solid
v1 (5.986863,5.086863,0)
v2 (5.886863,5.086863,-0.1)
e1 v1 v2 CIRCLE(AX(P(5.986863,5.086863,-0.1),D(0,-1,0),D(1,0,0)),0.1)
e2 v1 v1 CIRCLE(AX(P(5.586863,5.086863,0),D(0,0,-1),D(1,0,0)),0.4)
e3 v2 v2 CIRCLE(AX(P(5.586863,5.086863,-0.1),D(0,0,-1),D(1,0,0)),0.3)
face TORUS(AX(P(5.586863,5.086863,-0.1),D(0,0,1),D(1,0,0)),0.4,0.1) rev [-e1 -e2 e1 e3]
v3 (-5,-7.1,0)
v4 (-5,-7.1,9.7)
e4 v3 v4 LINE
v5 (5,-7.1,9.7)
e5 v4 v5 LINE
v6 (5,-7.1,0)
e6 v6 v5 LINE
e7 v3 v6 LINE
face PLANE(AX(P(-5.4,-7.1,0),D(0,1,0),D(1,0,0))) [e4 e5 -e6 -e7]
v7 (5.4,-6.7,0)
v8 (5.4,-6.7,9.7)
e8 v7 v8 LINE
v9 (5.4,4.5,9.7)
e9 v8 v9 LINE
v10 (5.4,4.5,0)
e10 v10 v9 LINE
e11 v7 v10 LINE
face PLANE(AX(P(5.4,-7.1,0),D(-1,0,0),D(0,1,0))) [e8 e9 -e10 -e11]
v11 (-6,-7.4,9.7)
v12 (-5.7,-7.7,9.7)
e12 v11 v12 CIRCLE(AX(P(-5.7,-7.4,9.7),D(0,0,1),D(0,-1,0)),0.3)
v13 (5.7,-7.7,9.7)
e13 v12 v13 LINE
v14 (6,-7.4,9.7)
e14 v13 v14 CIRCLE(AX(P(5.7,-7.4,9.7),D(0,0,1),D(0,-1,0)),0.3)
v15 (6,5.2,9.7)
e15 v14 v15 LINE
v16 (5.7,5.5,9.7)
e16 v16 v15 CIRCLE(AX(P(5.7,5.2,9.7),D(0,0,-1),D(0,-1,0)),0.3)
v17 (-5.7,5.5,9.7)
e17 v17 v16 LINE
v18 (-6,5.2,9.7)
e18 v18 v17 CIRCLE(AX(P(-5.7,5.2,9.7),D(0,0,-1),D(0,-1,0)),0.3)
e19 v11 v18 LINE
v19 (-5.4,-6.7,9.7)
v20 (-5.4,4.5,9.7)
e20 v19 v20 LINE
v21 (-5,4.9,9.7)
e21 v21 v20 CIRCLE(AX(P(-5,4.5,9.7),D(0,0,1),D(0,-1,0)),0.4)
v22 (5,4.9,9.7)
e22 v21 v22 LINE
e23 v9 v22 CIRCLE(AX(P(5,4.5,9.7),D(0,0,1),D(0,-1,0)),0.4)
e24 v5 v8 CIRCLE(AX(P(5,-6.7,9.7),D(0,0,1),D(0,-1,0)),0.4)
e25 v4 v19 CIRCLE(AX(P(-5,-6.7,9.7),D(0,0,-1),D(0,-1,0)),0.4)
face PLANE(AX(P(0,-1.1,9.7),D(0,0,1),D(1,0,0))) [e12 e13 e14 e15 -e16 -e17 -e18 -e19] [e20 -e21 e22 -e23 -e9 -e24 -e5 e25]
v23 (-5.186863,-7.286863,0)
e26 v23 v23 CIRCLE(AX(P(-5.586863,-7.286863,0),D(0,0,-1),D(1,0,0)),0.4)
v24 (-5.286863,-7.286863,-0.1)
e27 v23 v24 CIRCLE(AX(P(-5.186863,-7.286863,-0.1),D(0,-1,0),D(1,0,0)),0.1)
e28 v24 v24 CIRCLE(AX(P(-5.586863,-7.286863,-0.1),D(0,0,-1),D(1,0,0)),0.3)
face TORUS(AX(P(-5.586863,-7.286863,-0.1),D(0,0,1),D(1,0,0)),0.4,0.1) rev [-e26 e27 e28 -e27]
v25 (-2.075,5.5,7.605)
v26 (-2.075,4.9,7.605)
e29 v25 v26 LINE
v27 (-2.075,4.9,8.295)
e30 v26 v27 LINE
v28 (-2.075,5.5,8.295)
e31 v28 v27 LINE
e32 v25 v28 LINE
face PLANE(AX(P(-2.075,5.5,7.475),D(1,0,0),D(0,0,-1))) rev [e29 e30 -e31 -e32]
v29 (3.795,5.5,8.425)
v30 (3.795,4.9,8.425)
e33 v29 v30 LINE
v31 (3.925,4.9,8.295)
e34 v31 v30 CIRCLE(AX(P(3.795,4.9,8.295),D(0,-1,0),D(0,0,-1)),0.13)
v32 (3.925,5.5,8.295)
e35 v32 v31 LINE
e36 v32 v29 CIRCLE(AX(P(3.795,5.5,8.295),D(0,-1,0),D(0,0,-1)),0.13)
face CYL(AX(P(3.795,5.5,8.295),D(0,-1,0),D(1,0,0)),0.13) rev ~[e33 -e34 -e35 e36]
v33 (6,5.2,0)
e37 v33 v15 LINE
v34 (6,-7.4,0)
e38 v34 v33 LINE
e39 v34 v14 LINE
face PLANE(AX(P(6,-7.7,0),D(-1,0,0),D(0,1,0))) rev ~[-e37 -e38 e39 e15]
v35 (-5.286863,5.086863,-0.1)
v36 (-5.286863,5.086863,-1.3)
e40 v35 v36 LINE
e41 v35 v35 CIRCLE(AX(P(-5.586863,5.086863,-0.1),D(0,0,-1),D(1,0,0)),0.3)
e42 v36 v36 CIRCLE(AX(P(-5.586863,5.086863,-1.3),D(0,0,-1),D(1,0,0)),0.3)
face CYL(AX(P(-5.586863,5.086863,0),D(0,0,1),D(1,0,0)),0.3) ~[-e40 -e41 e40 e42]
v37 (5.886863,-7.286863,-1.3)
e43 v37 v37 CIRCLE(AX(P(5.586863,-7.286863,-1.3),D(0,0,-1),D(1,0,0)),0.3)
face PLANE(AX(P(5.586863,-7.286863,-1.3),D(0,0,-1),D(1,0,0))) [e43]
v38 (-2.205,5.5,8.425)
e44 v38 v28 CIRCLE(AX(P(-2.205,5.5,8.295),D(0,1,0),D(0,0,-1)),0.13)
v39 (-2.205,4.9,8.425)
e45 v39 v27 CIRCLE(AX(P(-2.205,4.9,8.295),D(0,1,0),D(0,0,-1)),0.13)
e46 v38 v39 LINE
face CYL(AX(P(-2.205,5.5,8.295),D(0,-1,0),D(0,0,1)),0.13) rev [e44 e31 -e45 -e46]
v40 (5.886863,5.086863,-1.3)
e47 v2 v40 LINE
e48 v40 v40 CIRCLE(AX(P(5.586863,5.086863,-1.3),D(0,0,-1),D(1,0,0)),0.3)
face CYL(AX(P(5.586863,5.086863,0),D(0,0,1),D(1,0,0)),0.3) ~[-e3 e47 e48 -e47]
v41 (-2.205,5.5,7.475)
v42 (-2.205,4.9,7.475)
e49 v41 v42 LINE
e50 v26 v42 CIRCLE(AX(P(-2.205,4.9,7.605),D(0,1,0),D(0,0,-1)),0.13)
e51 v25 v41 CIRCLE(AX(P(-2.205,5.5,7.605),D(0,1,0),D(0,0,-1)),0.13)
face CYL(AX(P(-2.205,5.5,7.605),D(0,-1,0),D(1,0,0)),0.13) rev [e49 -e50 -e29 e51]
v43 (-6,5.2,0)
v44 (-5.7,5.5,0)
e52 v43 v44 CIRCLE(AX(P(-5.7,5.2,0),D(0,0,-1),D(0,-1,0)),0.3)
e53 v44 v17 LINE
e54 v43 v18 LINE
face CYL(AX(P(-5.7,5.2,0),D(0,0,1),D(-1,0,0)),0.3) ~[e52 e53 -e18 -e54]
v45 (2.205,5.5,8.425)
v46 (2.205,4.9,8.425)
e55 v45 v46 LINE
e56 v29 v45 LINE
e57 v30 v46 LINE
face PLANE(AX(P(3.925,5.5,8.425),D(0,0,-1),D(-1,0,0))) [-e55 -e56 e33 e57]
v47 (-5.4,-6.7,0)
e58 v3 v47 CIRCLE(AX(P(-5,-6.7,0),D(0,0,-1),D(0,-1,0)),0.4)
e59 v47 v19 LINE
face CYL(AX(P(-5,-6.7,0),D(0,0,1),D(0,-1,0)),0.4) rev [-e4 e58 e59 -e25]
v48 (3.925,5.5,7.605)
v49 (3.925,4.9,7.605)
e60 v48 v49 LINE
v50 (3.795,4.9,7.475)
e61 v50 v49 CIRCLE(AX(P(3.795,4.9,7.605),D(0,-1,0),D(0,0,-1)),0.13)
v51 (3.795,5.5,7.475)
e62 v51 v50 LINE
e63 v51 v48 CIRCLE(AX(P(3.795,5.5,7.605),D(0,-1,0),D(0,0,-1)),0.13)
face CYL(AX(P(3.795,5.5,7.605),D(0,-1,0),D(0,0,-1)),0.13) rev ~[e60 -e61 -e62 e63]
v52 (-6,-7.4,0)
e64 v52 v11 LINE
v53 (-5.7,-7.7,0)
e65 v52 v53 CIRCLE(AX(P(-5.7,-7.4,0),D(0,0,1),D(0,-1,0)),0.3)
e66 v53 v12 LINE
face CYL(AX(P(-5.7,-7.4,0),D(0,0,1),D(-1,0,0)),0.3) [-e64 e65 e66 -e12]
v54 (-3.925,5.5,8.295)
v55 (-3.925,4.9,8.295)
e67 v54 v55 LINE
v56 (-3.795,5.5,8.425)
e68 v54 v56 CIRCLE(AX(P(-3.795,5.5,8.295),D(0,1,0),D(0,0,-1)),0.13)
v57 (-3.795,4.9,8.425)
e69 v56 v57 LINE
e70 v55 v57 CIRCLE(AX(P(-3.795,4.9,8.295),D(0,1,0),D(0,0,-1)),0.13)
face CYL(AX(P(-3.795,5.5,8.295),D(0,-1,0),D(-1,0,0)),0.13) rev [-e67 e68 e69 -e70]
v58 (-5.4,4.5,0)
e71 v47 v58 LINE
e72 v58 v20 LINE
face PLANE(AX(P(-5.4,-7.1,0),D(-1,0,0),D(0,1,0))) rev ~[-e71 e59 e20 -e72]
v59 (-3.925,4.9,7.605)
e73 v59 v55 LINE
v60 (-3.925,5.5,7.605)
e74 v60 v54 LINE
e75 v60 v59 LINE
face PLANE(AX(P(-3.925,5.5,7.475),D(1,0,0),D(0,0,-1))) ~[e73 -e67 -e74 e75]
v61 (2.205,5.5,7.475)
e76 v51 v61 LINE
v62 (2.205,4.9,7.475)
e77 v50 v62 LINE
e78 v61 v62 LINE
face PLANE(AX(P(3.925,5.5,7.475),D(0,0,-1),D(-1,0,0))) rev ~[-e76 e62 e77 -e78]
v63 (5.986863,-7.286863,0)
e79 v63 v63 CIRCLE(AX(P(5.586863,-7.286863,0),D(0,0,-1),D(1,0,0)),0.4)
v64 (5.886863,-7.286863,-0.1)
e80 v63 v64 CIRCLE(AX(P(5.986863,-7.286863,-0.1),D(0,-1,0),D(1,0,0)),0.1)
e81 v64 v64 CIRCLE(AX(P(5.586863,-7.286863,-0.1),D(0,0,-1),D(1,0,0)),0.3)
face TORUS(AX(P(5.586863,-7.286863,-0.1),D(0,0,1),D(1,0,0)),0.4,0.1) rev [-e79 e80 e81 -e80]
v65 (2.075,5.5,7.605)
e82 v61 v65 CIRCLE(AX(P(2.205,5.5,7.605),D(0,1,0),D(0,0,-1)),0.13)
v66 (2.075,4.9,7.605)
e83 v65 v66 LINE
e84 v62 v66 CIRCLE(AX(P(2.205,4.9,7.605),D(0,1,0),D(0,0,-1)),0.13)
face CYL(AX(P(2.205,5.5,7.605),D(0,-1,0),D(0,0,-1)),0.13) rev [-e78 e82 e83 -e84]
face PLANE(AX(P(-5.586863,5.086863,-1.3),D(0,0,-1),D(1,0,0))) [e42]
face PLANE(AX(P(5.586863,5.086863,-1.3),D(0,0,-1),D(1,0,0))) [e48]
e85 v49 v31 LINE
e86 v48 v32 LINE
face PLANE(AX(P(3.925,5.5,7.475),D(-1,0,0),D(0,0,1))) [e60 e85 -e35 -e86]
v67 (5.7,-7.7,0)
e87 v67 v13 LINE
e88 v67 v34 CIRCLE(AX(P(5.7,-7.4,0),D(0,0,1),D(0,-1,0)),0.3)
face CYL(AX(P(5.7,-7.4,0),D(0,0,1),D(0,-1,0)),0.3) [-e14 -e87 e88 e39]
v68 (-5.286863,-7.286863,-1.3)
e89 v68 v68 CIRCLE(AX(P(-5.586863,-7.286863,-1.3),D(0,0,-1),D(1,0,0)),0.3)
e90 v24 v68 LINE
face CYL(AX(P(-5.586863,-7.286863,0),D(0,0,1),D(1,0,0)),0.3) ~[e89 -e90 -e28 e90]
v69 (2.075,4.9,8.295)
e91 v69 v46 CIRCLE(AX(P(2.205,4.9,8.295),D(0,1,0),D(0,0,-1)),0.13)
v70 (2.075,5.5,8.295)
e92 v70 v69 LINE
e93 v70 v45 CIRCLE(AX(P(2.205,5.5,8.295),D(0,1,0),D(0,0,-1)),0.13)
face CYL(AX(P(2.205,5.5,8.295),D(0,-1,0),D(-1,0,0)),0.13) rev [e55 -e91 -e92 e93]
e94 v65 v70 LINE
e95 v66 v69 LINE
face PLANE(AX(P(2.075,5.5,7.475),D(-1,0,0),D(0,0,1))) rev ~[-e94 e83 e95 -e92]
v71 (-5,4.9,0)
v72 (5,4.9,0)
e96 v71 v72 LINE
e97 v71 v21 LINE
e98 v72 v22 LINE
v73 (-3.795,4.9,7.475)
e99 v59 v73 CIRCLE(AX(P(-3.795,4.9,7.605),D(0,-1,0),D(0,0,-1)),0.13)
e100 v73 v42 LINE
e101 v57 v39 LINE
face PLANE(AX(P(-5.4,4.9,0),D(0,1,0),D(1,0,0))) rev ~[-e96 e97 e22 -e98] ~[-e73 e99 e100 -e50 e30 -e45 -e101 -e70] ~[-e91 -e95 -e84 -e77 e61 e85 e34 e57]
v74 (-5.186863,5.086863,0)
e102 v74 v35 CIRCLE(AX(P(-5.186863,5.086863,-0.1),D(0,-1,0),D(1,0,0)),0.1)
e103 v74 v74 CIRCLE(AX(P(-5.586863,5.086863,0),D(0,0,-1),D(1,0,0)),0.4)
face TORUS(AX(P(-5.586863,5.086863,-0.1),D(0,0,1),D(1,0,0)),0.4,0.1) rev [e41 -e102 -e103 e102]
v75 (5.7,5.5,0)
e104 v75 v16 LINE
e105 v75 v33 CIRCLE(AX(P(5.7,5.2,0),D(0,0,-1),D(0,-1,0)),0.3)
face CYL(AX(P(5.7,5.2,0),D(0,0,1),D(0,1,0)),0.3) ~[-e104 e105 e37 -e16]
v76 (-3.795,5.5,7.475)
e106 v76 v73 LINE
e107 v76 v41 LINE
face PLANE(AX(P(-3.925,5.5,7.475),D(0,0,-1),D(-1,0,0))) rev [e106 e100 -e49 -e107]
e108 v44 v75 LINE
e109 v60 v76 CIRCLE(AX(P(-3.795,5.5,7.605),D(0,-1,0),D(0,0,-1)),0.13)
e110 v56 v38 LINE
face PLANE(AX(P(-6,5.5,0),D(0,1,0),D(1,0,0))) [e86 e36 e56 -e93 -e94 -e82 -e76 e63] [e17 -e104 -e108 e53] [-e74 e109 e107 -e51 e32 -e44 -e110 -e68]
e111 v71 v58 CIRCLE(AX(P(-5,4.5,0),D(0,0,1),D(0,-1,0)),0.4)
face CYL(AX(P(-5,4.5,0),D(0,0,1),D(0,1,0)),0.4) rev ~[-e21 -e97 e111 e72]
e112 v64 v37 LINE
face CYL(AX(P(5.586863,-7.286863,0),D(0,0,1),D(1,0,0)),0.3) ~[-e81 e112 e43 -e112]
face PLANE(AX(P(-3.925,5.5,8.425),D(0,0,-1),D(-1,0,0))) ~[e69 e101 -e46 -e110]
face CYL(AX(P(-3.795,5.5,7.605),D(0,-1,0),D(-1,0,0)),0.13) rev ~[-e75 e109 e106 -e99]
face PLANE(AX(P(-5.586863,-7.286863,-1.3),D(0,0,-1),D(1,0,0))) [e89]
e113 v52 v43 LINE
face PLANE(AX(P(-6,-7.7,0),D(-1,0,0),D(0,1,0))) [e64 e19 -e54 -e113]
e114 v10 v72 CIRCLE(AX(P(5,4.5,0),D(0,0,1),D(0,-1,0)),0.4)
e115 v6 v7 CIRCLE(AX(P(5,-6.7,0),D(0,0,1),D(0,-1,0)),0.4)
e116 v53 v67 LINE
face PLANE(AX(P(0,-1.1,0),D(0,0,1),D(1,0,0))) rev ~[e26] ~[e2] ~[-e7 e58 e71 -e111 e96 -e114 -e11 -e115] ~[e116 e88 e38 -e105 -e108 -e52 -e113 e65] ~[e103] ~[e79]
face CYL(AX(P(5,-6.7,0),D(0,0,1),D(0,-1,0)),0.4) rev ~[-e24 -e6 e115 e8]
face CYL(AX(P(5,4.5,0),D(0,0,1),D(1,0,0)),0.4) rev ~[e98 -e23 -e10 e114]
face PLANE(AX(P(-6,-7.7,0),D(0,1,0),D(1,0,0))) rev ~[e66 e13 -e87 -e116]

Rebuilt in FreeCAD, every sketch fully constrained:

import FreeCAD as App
import Part
import Sketcher
Q = App.Units.Quantity


def edges_at(feature, points):
    """Names of the edges that pass closest to the given points."""
    edges = feature.Shape.Edges
    near = lambda p: min(range(len(edges)), key=lambda i: edges[i].distToShape(Part.Vertex(*p))[0])
    return sorted({f"Edge{near(p) + 1}" for p in points})

doc = App.newDocument("Part")
body = doc.addObject("PartDesign::Body", "Body")

sketch1 = doc.addObject("Sketcher::SketchObject", "Sketch")
body.addObject(sketch1)
sketch1.AttachmentSupport = (doc.XY_Plane, [""])
sketch1.MapMode = "FlatFace"
sketch1.addGeometry(Part.LineSegment(App.Vector(-6, 5.5, 0), App.Vector(-6, -7.7, 0)), False)
sketch1.addGeometry(Part.LineSegment(App.Vector(-6, -7.7, 0), App.Vector(6, -7.7, 0)), False)
sketch1.addGeometry(Part.LineSegment(App.Vector(6, -7.7, 0), App.Vector(6, 5.5, 0)), False)
sketch1.addGeometry(Part.LineSegment(App.Vector(6, 5.5, 0), App.Vector(-6, 5.5, 0)), False)
sketch1.addGeometry(Part.LineSegment(App.Vector(5.4, -7.1, 0), App.Vector(-5.4, -7.1, 0)), False)
sketch1.addGeometry(Part.LineSegment(App.Vector(-5.4, -7.1, 0), App.Vector(-5.4, 4.9, 0)), False)
sketch1.addGeometry(Part.LineSegment(App.Vector(-5.4, 4.9, 0), App.Vector(5.4, 4.9, 0)), False)
sketch1.addGeometry(Part.LineSegment(App.Vector(5.4, 4.9, 0), App.Vector(5.4, -7.1, 0)), False)
sketch1.addConstraint(Sketcher.Constraint("Coincident", 0, 2, 1, 1))
sketch1.addConstraint(Sketcher.Constraint("Coincident", 1, 2, 2, 1))
sketch1.addConstraint(Sketcher.Constraint("Coincident", 2, 2, 3, 1))
sketch1.addConstraint(Sketcher.Constraint("Coincident", 3, 2, 0, 1))
sketch1.addConstraint(Sketcher.Constraint("Coincident", 4, 2, 5, 1))
sketch1.addConstraint(Sketcher.Constraint("Coincident", 5, 2, 6, 1))
sketch1.addConstraint(Sketcher.Constraint("Coincident", 6, 2, 7, 1))
sketch1.addConstraint(Sketcher.Constraint("Coincident", 7, 2, 4, 1))
sketch1.addConstraint(Sketcher.Constraint("Vertical", 0))
sketch1.addConstraint(Sketcher.Constraint("Horizontal", 1))
sketch1.addConstraint(Sketcher.Constraint("Vertical", 2))
sketch1.addConstraint(Sketcher.Constraint("Horizontal", 3))
sketch1.addConstraint(Sketcher.Constraint("Horizontal", 4))
sketch1.addConstraint(Sketcher.Constraint("Vertical", 5))
sketch1.addConstraint(Sketcher.Constraint("Horizontal", 6))
sketch1.addConstraint(Sketcher.Constraint("Vertical", 7))
sketch1.addConstraint(Sketcher.Constraint("Equal", 3, 5))
sketch1.addConstraint(Sketcher.Constraint("DistanceX", 1, 1, 1, 2, Q("12 mm")))
sketch1.addConstraint(Sketcher.Constraint("DistanceX", 4, 2, 4, 1, Q("10.8 mm")))
sketch1.addConstraint(Sketcher.Constraint("DistanceY", 0, 2, 0, 1, Q("13.2 mm")))
sketch1.addConstraint(Sketcher.Constraint("DistanceX", 0, 2, -1, 1, Q("6 mm")))
sketch1.addConstraint(Sketcher.Constraint("DistanceY", 0, 2, -1, 1, Q("7.7 mm")))
sketch1.addConstraint(Sketcher.Constraint("DistanceX", 4, 2, -1, 1, Q("5.4 mm")))
sketch1.addConstraint(Sketcher.Constraint("DistanceY", 4, 2, -1, 1, Q("7.1 mm")))
pad1 = doc.addObject("PartDesign::Pad", "Pad")
body.addObject(pad1)
pad1.Profile = sketch1
pad1.Length = 9.7
doc.recompute()

fillet = doc.addObject("PartDesign::Fillet", "Fillet")
body.addObject(fillet)
fillet.Base = (pad1, edges_at(pad1, [
    (-6, 5.5, 4.85),
    (-6, -7.7, 4.85),
    (6, -7.7, 4.85),
    (6, 5.5, 4.85),
]))
fillet.Radius = 0.3
doc.recompute()

fillet2 = doc.addObject("PartDesign::Fillet", "Fillet001")
body.addObject(fillet2)
fillet2.Base = (fillet, edges_at(fillet, [
    (-5.4, -7.1, 4.85),
    (-5.4, 4.9, 4.85),
    (5.4, -7.1, 4.85),
    (5.4, 4.9, 4.85),
]))
fillet2.Radius = 0.4

sketch2 = doc.addObject("Sketcher::SketchObject", "Sketch001")
body.addObject(sketch2)
sketch2.AttachmentSupport = (doc.XZ_Plane, [""])
sketch2.MapMode = "FlatFace"
sketch2.AttachmentOffset = App.Placement(App.Vector(0, 0, -5.5), App.Rotation())
sketch2.addGeometry(Part.LineSegment(App.Vector(3.925, 8.425, 0), App.Vector(3.925, 7.475, 0)), False)
sketch2.addGeometry(Part.LineSegment(App.Vector(3.925, 7.475, 0), App.Vector(2.075, 7.475, 0)), False)
sketch2.addGeometry(Part.LineSegment(App.Vector(2.075, 7.475, 0), App.Vector(2.075, 8.425, 0)), False)
sketch2.addGeometry(Part.LineSegment(App.Vector(2.075, 8.425, 0), App.Vector(3.925, 8.425, 0)), False)
sketch2.addConstraint(Sketcher.Constraint("Coincident", 0, 2, 1, 1))
sketch2.addConstraint(Sketcher.Constraint("Coincident", 1, 2, 2, 1))
sketch2.addConstraint(Sketcher.Constraint("Coincident", 2, 2, 3, 1))
sketch2.addConstraint(Sketcher.Constraint("Coincident", 3, 2, 0, 1))
sketch2.addConstraint(Sketcher.Constraint("Vertical", 0))
sketch2.addConstraint(Sketcher.Constraint("Horizontal", 1))
sketch2.addConstraint(Sketcher.Constraint("Vertical", 2))
sketch2.addConstraint(Sketcher.Constraint("Horizontal", 3))
sketch2.addConstraint(Sketcher.Constraint("DistanceX", 1, 2, 1, 1, Q("1.85 mm")))
sketch2.addConstraint(Sketcher.Constraint("DistanceY", 0, 2, 0, 1, Q("0.95 mm")))
sketch2.addConstraint(Sketcher.Constraint("DistanceX", -1, 1, 0, 2, Q("3.925 mm")))
sketch2.addConstraint(Sketcher.Constraint("DistanceY", -1, 1, 0, 2, Q("7.475 mm")))
pocket1 = doc.addObject("PartDesign::Pocket", "Pocket")
body.addObject(pocket1)
pocket1.Profile = sketch2
pocket1.Length = 0.6
pocket1.Reversed = True
doc.recompute()

mirrored = doc.addObject("PartDesign::Mirrored", "Mirrored")
body.addObject(mirrored)
mirrored.Originals = [pocket1]
mirrored.MirrorPlane = (doc.YZ_Plane, [""])
body.Tip = mirrored
doc.recompute()

fillet3 = doc.addObject("PartDesign::Fillet", "Fillet002")
body.addObject(fillet3)
fillet3.Base = (mirrored, edges_at(mirrored, [
    (2.075, 5.2, 8.425),
    (2.075, 5.2, 7.475),
    (-3.925, 5.2, 7.475),
    (-3.925, 5.2, 8.425),
    (-2.075, 5.2, 8.425),
    (-2.075, 5.2, 7.475),
    (3.925, 5.2, 7.475),
    (3.925, 5.2, 8.425),
]))
fillet3.Radius = 0.13

sketch3 = doc.addObject("Sketcher::SketchObject", "Sketch002")
body.addObject(sketch3)
sketch3.AttachmentSupport = (doc.XY_Plane, [""])
sketch3.MapMode = "FlatFace"
sketch3.addGeometry(Part.Circle(App.Vector(-5.586863, -7.286863, 0), App.Vector(0, 0, 1), 0.3), False)
sketch3.addGeometry(Part.Circle(App.Vector(5.586863, -7.286863, 0), App.Vector(0, 0, 1), 0.3), False)
sketch3.addGeometry(Part.Circle(App.Vector(-5.586863, 5.086863, 0), App.Vector(0, 0, 1), 0.3), False)
sketch3.addGeometry(Part.Circle(App.Vector(5.586863, 5.086863, 0), App.Vector(0, 0, 1), 0.3), False)
sketch3.addConstraint(Sketcher.Constraint("Equal", 0, 1))
sketch3.addConstraint(Sketcher.Constraint("Equal", 1, 2))
sketch3.addConstraint(Sketcher.Constraint("Equal", 2, 3))
sketch3.addConstraint(Sketcher.Constraint("Symmetric", 0, 3, 1, 3, -2))
sketch3.addConstraint(Sketcher.Constraint("Symmetric", 2, 3, 3, 3, -2))
sketch3.addConstraint(Sketcher.Constraint("Vertical", 0, 3, 2, 3))
sketch3.addConstraint(Sketcher.Constraint("Diameter", 0, Q("0.6 mm")))
sketch3.addConstraint(Sketcher.Constraint("DistanceX", 0, 3, -1, 1, Q("5.586863 mm")))
sketch3.addConstraint(Sketcher.Constraint("DistanceY", 0, 3, -1, 1, Q("7.286863 mm")))
sketch3.addConstraint(Sketcher.Constraint("DistanceY", -1, 1, 2, 3, Q("5.086863 mm")))
pad2 = doc.addObject("PartDesign::Pad", "Pad001")
body.addObject(pad2)
pad2.Profile = sketch3
pad2.Length = 1.3
pad2.Reversed = True
doc.recompute()

fillet4 = doc.addObject("PartDesign::Fillet", "Fillet003")
body.addObject(fillet4)
fillet4.Base = (pad2, edges_at(pad2, [
    (5.287, 5.087, 0),
    (-5.887, 5.087, 0),
    (-5.887, -7.287, 0),
    (5.287, -7.287, 0),
]))
fillet4.Radius = 0.1

doc.recompute()
